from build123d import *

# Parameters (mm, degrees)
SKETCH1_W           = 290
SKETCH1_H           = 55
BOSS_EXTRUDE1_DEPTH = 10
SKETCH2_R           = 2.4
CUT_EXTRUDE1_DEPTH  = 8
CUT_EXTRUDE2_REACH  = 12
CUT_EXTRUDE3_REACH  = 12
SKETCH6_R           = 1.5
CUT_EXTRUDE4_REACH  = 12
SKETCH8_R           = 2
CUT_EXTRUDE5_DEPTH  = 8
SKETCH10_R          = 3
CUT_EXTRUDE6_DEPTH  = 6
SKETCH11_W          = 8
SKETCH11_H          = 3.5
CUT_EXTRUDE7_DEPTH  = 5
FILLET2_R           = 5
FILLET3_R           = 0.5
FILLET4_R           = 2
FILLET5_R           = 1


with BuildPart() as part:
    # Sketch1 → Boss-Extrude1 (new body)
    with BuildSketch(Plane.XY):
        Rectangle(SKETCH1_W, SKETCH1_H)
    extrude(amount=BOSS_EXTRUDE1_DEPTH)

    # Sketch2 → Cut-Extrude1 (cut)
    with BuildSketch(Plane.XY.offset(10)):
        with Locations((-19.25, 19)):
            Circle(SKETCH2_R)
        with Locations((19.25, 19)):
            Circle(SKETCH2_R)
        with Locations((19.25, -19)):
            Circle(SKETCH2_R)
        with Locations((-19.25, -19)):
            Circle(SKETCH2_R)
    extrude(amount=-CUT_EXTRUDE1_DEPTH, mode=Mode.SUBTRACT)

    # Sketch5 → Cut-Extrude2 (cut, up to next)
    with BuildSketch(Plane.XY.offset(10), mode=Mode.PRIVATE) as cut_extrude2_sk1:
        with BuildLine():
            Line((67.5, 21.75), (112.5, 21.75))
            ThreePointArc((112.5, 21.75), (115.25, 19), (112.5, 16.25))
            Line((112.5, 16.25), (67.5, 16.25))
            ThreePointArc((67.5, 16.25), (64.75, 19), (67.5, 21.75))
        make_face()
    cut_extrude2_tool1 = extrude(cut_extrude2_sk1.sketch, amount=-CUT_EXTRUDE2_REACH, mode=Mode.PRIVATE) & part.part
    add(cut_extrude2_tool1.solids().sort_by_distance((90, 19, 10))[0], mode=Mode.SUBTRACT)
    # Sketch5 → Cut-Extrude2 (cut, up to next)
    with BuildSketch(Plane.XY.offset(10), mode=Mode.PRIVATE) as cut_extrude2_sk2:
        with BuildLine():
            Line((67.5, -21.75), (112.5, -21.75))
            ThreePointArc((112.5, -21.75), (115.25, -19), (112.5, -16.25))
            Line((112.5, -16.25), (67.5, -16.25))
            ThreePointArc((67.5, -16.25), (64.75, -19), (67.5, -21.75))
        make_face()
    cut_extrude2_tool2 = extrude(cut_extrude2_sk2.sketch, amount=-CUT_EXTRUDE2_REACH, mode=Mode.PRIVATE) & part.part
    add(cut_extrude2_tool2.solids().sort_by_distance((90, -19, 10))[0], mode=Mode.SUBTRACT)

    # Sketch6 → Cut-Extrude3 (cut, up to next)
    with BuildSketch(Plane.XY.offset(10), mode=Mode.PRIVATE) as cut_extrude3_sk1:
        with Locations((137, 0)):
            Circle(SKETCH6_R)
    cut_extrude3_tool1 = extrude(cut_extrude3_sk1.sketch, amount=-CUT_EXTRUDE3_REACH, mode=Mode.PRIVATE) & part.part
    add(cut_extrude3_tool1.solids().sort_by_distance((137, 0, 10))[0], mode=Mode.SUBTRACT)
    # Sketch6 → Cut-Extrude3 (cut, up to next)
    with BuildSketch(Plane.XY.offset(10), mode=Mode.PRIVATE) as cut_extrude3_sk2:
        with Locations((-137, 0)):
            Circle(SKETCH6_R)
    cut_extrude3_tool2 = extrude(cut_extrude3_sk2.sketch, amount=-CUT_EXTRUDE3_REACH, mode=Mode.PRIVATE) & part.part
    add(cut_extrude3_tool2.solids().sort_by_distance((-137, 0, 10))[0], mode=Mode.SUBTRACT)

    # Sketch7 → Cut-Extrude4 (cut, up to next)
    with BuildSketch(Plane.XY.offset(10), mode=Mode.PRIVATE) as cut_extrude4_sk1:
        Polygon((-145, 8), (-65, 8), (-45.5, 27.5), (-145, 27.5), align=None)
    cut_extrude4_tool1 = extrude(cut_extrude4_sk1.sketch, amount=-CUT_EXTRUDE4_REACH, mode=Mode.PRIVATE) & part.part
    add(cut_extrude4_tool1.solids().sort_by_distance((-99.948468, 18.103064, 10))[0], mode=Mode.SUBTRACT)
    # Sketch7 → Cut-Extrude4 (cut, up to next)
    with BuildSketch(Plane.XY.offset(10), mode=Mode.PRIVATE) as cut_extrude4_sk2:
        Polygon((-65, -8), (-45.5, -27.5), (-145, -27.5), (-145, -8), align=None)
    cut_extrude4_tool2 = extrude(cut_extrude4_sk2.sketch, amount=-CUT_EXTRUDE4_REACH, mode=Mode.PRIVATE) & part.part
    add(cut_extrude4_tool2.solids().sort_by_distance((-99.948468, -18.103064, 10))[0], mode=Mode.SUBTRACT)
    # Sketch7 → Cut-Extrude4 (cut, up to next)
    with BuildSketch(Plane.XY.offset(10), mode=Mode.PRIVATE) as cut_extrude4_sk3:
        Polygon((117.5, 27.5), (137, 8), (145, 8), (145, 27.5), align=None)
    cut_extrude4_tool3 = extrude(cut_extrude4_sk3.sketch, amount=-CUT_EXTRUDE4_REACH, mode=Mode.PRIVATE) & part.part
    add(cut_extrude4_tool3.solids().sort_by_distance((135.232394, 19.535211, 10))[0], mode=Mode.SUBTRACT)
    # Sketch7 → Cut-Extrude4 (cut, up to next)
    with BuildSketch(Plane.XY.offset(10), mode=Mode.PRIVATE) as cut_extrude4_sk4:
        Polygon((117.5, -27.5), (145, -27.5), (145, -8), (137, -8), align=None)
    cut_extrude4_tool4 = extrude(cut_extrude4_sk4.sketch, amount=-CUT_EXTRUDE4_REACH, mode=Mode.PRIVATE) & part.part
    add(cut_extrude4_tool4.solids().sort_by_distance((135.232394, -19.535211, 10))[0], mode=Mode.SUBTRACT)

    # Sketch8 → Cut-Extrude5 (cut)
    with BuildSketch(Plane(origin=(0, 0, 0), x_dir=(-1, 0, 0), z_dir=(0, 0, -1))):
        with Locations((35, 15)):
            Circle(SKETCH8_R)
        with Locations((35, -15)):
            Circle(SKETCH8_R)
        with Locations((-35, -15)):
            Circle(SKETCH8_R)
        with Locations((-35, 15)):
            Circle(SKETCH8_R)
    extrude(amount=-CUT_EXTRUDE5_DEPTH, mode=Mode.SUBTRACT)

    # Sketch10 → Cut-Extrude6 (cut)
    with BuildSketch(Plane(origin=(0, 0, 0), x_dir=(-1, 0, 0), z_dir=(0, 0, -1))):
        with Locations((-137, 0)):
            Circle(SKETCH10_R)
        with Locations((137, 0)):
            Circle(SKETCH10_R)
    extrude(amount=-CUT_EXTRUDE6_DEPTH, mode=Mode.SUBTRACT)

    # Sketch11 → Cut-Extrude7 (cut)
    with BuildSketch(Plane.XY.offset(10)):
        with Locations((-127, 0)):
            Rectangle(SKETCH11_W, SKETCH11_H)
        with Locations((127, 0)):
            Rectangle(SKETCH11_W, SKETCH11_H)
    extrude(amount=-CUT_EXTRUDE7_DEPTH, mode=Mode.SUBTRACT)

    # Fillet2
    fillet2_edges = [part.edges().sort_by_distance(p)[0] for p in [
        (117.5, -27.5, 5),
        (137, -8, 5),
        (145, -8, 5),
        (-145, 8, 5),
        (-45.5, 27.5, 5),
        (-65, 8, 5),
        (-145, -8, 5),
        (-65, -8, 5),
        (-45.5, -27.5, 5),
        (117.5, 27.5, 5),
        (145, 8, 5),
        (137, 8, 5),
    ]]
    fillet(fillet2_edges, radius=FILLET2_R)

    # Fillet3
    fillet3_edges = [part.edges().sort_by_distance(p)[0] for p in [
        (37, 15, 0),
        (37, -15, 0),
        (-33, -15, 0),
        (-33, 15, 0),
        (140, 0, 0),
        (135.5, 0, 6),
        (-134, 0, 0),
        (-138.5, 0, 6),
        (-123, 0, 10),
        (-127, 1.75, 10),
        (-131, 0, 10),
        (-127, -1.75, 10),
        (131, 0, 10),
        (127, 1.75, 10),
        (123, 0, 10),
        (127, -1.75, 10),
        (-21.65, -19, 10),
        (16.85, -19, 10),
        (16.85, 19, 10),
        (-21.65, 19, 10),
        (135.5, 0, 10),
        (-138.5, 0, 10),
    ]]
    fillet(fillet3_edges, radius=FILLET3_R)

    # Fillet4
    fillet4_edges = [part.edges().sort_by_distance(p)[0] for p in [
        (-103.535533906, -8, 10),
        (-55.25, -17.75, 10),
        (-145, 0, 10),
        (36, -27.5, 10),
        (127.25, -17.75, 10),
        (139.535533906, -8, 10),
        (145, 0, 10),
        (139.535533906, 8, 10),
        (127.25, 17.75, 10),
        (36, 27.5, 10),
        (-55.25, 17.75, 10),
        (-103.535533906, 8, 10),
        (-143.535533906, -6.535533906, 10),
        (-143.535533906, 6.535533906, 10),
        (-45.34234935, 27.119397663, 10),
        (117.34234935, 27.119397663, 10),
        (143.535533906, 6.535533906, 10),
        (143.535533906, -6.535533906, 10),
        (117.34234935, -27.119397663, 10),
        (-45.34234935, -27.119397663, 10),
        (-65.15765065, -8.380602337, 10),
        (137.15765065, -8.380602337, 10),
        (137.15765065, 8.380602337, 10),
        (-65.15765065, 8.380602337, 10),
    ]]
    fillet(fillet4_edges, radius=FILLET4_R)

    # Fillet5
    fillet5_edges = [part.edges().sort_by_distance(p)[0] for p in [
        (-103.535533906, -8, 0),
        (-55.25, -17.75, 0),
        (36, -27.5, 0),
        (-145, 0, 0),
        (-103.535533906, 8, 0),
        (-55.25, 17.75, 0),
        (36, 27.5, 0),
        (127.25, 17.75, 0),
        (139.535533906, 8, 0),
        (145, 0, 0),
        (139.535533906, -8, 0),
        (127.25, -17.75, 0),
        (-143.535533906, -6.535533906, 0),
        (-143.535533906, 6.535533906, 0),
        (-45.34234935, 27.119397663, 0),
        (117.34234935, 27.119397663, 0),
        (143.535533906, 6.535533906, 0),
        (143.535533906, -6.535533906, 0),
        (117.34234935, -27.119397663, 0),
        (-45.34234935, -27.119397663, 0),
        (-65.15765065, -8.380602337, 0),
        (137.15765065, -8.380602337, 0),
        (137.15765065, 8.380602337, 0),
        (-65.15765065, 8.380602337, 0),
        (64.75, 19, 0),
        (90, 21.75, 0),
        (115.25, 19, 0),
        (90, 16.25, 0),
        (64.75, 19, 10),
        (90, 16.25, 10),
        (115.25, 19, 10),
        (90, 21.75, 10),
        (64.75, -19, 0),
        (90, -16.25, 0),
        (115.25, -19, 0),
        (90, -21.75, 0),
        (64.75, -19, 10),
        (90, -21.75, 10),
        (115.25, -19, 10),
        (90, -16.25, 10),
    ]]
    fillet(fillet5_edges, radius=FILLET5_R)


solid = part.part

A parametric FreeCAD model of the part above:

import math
import FreeCAD as App
import Part
import Sketcher
Q = App.Units.Quantity


def edges_at(feature, points):
    """Names of the edges that pass closest to the given points."""
    edges = feature.Shape.Edges
    near = lambda p: min(range(len(edges)), key=lambda i: edges[i].distToShape(Part.Vertex(*p))[0])
    return sorted({f"Edge{near(p) + 1}" for p in points})

doc = App.newDocument("Part")
body = doc.addObject("PartDesign::Body", "Body")

# Sketch on XY plane
sketch1 = doc.addObject("Sketcher::SketchObject", "Sketch")
body.addObject(sketch1)
sketch1.AttachmentSupport = (doc.XY_Plane, [""])
sketch1.MapMode = "FlatFace"
sketch1.addGeometry(Part.LineSegment(App.Vector(-145, 27.5, 0), App.Vector(-145, -27.5, 0)), False)
sketch1.addGeometry(Part.LineSegment(App.Vector(-145, -27.5, 0), App.Vector(145, -27.5, 0)), False)
sketch1.addGeometry(Part.LineSegment(App.Vector(145, -27.5, 0), App.Vector(145, 27.5, 0)), False)
sketch1.addGeometry(Part.LineSegment(App.Vector(145, 27.5, 0), App.Vector(-145, 27.5, 0)), False)
sketch1.addConstraint(Sketcher.Constraint("Coincident", 0, 2, 1, 1))
sketch1.addConstraint(Sketcher.Constraint("Coincident", 1, 2, 2, 1))
sketch1.addConstraint(Sketcher.Constraint("Coincident", 2, 2, 3, 1))
sketch1.addConstraint(Sketcher.Constraint("Coincident", 3, 2, 0, 1))
sketch1.addConstraint(Sketcher.Constraint("Vertical", 0))
sketch1.addConstraint(Sketcher.Constraint("Horizontal", 1))
sketch1.addConstraint(Sketcher.Constraint("Vertical", 2))
sketch1.addConstraint(Sketcher.Constraint("Horizontal", 3))
sketch1.addConstraint(Sketcher.Constraint("Symmetric", 0, 2, 2, 2, -1, 1))
sketch1.addConstraint(Sketcher.Constraint("DistanceX", 1, 1, 1, 2, Q("290 mm")))
sketch1.addConstraint(Sketcher.Constraint("DistanceY", 0, 2, 0, 1, Q("55 mm")))
pad1 = doc.addObject("PartDesign::Pad", "Pad")
body.addObject(pad1)
pad1.Profile = sketch1
pad1.Length = 10

# Sketch on XY plane
sketch2 = doc.addObject("Sketcher::SketchObject", "Sketch001")
body.addObject(sketch2)
sketch2.AttachmentSupport = (doc.XY_Plane, [""])
sketch2.MapMode = "FlatFace"
sketch2.AttachmentOffset = App.Placement(App.Vector(0, 0, 10), App.Rotation())
sketch2.addGeometry(Part.Circle(App.Vector(-19.25, 19, 0), App.Vector(0, 0, 1), 2.4), False)
sketch2.addGeometry(Part.Circle(App.Vector(19.25, 19, 0), App.Vector(0, 0, 1), 2.4), False)
sketch2.addGeometry(Part.Circle(App.Vector(19.25, -19, 0), App.Vector(0, 0, 1), 2.4), False)
sketch2.addGeometry(Part.Circle(App.Vector(-19.25, -19, 0), App.Vector(0, 0, 1), 2.4), False)
sketch2.addConstraint(Sketcher.Constraint("Equal", 0, 1))
sketch2.addConstraint(Sketcher.Constraint("Equal", 1, 2))
sketch2.addConstraint(Sketcher.Constraint("Equal", 2, 3))
sketch2.addConstraint(Sketcher.Constraint("Symmetric", 0, 3, 2, 3, -1, 1))
sketch2.addConstraint(Sketcher.Constraint("Symmetric", 1, 3, 3, 3, -1, 1))
sketch2.addConstraint(Sketcher.Constraint("Symmetric", 0, 3, 1, 3, -2))
sketch2.addConstraint(Sketcher.Constraint("Diameter", 0, Q("4.8 mm")))
sketch2.addConstraint(Sketcher.Constraint("DistanceY", -1, 1, 0, 3, Q("19 mm")))
sketch2.addConstraint(Sketcher.Constraint("DistanceX", 0, 3, 1, 3, Q("38.5 mm")))
pocket1 = doc.addObject("PartDesign::Pocket", "Pocket")
body.addObject(pocket1)
pocket1.Profile = sketch2
pocket1.Length = 8

# Sketch on XY plane
sketch3 = doc.addObject("Sketcher::SketchObject", "Sketch002")
body.addObject(sketch3)
sketch3.AttachmentSupport = (doc.XY_Plane, [""])
sketch3.MapMode = "FlatFace"
sketch3.AttachmentOffset = App.Placement(App.Vector(0, 0, 10), App.Rotation())
sketch3.addGeometry(Part.LineSegment(App.Vector(112.5, 21.75, 0), App.Vector(67.5, 21.75, 0)), False)
sketch3.addGeometry(Part.ArcOfCircle(Part.Circle(App.Vector(67.5, 19, 0), App.Vector(0, 0, 1), 2.75), math.radians(90), math.radians(270)), False)
sketch3.addGeometry(Part.LineSegment(App.Vector(67.5, 16.25, 0), App.Vector(112.5, 16.25, 0)), False)
sketch3.addGeometry(Part.ArcOfCircle(Part.Circle(App.Vector(112.5, 19, 0), App.Vector(0, 0, 1), 2.75), math.radians(-90), math.radians(90)), False)
sketch3.addConstraint(Sketcher.Constraint("Tangent", 0, 2, 1, 1))
sketch3.addConstraint(Sketcher.Constraint("Tangent", 1, 2, 2, 1))
sketch3.addConstraint(Sketcher.Constraint("Tangent", 2, 2, 3, 1))
sketch3.addConstraint(Sketcher.Constraint("Tangent", 3, 2, 0, 1))
sketch3.addConstraint(Sketcher.Constraint("Horizontal", 0))
sketch3.addConstraint(Sketcher.Constraint("Horizontal", 2))
sketch3.addConstraint(Sketcher.Constraint("DistanceX", 0, 2, 0, 1, Q("45 mm")))
sketch3.addConstraint(Sketcher.Constraint("Radius", 1, Q("2.75 mm")))
sketch3.addConstraint(Sketcher.Constraint("DistanceY", -1, 1, 1, 3, Q("19 mm")))
sketch3.addConstraint(Sketcher.Constraint("DistanceX", -1, 1, 1, 3, Q("67.5 mm")))
pocket2 = doc.addObject("PartDesign::Pocket", "Pocket001")
body.addObject(pocket2)
pocket2.Profile = sketch3
pocket2.Type = "UpToFirst"

# Sketch on XY plane
sketch4 = doc.addObject("Sketcher::SketchObject", "Sketch003")
body.addObject(sketch4)
sketch4.AttachmentSupport = (doc.XY_Plane, [""])
sketch4.MapMode = "FlatFace"
sketch4.AttachmentOffset = App.Placement(App.Vector(0, 0, 10), App.Rotation())
sketch4.addGeometry(Part.LineSegment(App.Vector(67.5, -21.75, 0), App.Vector(112.5, -21.75, 0)), False)
sketch4.addGeometry(Part.ArcOfCircle(Part.Circle(App.Vector(112.5, -19, 0), App.Vector(0, 0, 1), 2.75), math.radians(-90), math.radians(90)), False)
sketch4.addGeometry(Part.LineSegment(App.Vector(112.5, -16.25, 0), App.Vector(67.5, -16.25, 0)), False)
sketch4.addGeometry(Part.ArcOfCircle(Part.Circle(App.Vector(67.5, -19, 0), App.Vector(0, 0, 1), 2.75), math.radians(90), math.radians(270)), False)
sketch4.addConstraint(Sketcher.Constraint("Tangent", 0, 2, 1, 1))
sketch4.addConstraint(Sketcher.Constraint("Tangent", 1, 2, 2, 1))
sketch4.addConstraint(Sketcher.Constraint("Tangent", 2, 2, 3, 1))
sketch4.addConstraint(Sketcher.Constraint("Tangent", 3, 2, 0, 1))
sketch4.addConstraint(Sketcher.Constraint("Horizontal", 0))
sketch4.addConstraint(Sketcher.Constraint("Horizontal", 2))
sketch4.addConstraint(Sketcher.Constraint("DistanceX", 0, 1, 0, 2, Q("45 mm")))
sketch4.addConstraint(Sketcher.Constraint("Radius", 1, Q("2.75 mm")))
sketch4.addConstraint(Sketcher.Constraint("DistanceY", 1, 3, -1, 1, Q("19 mm")))
sketch4.addConstraint(Sketcher.Constraint("DistanceX", -1, 1, 1, 3, Q("112.5 mm")))
pocket3 = doc.addObject("PartDesign::Pocket", "Pocket002")
body.addObject(pocket3)
pocket3.Profile = sketch4
pocket3.Type = "UpToFirst"

# Sketch on XY plane
sketch5 = doc.addObject("Sketcher::SketchObject", "Sketch004")
body.addObject(sketch5)
sketch5.AttachmentSupport = (doc.XY_Plane, [""])
sketch5.MapMode = "FlatFace"
sketch5.AttachmentOffset = App.Placement(App.Vector(0, 0, 10), App.Rotation())
sketch5.addGeometry(Part.Circle(App.Vector(137, 0, 0), App.Vector(0, 0, 1), 1.5), False)
sketch5.addConstraint(Sketcher.Constraint("PointOnObject", 0, 3, -1))
sketch5.addConstraint(Sketcher.Constraint("Diameter", 0, Q("3 mm")))
sketch5.addConstraint(Sketcher.Constraint("DistanceX", -1, 1, 0, 3, Q("137 mm")))
pocket4 = doc.addObject("PartDesign::Pocket", "Pocket003")
body.addObject(pocket4)
pocket4.Profile = sketch5
pocket4.Type = "UpToFirst"

# Sketch on XY plane
sketch6 = doc.addObject("Sketcher::SketchObject", "Sketch005")
body.addObject(sketch6)
sketch6.AttachmentSupport = (doc.XY_Plane, [""])
sketch6.MapMode = "FlatFace"
sketch6.AttachmentOffset = App.Placement(App.Vector(0, 0, 10), App.Rotation())
sketch6.addGeometry(Part.Circle(App.Vector(-137, 0, 0), App.Vector(0, 0, 1), 1.5), False)
sketch6.addConstraint(Sketcher.Constraint("PointOnObject", 0, 3, -1))
sketch6.addConstraint(Sketcher.Constraint("Diameter", 0, Q("3 mm")))
sketch6.addConstraint(Sketcher.Constraint("DistanceX", 0, 3, -1, 1, Q("137 mm")))
pocket5 = doc.addObject("PartDesign::Pocket", "Pocket004")
body.addObject(pocket5)
pocket5.Profile = sketch6
pocket5.Type = "UpToFirst"

# Sketch on XY plane
sketch7 = doc.addObject("Sketcher::SketchObject", "Sketch006")
body.addObject(sketch7)
sketch7.AttachmentSupport = (doc.XY_Plane, [""])
sketch7.MapMode = "FlatFace"
sketch7.AttachmentOffset = App.Placement(App.Vector(0, 0, 10), App.Rotation())
sketch7.addGeometry(Part.LineSegment(App.Vector(-145, 8, 0), App.Vector(-65, 8, 0)), False)
sketch7.addGeometry(Part.LineSegment(App.Vector(-65, 8, 0), App.Vector(-45.5, 27.5, 0)), False)
sketch7.addGeometry(Part.LineSegment(App.Vector(-45.5, 27.5, 0), App.Vector(-145, 27.5, 0)), False)
sketch7.addGeometry(Part.LineSegment(App.Vector(-145, 27.5, 0), App.Vector(-145, 8, 0)), False)
sketch7.addConstraint(Sketcher.Constraint("Coincident", 0, 2, 1, 1))
sketch7.addConstraint(Sketcher.Constraint("Coincident", 1, 2, 2, 1))
sketch7.addConstraint(Sketcher.Constraint("Coincident", 2, 2, 3, 1))
sketch7.addConstraint(Sketcher.Constraint("Coincident", 3, 2, 0, 1))
sketch7.addConstraint(Sketcher.Constraint("Horizontal", 0))
sketch7.addConstraint(Sketcher.Constraint("Horizontal", 2))
sketch7.addConstraint(Sketcher.Constraint("Vertical", 3))
sketch7.addConstraint(Sketcher.Constraint("DistanceX", 0, 1, 0, 2, Q("80 mm")))
sketch7.addConstraint(Sketcher.Constraint("Angle", 1, Q("45 deg")))
sketch7.addConstraint(Sketcher.Constraint("DistanceX", 2, 2, 2, 1, Q("99.5 mm")))
sketch7.addConstraint(Sketcher.Constraint("DistanceX", 0, 2, -1, 1, Q("65 mm")))
sketch7.addConstraint(Sketcher.Constraint("DistanceY", -1, 1, 0, 2, Q("8 mm")))
pocket6 = doc.addObject("PartDesign::Pocket", "Pocket005")
body.addObject(pocket6)
pocket6.Profile = sketch7
pocket6.Type = "UpToFirst"

# Sketch on XY plane
sketch8 = doc.addObject("Sketcher::SketchObject", "Sketch007")
body.addObject(sketch8)
sketch8.AttachmentSupport = (doc.XY_Plane, [""])
sketch8.MapMode = "FlatFace"
sketch8.AttachmentOffset = App.Placement(App.Vector(0, 0, 10), App.Rotation())
sketch8.addGeometry(Part.LineSegment(App.Vector(-45.5, -27.5, 0), App.Vector(-65, -8, 0)), False)
sketch8.addGeometry(Part.LineSegment(App.Vector(-65, -8, 0), App.Vector(-145, -8, 0)), False)
sketch8.addGeometry(Part.LineSegment(App.Vector(-145, -8, 0), App.Vector(-145, -27.5, 0)), False)
sketch8.addGeometry(Part.LineSegment(App.Vector(-145, -27.5, 0), App.Vector(-45.5, -27.5, 0)), False)
sketch8.addConstraint(Sketcher.Constraint("Coincident", 0, 2, 1, 1))
sketch8.addConstraint(Sketcher.Constraint("Coincident", 1, 2, 2, 1))
sketch8.addConstraint(Sketcher.Constraint("Coincident", 2, 2, 3, 1))
sketch8.addConstraint(Sketcher.Constraint("Coincident", 3, 2, 0, 1))
sketch8.addConstraint(Sketcher.Constraint("Horizontal", 1))
sketch8.addConstraint(Sketcher.Constraint("Vertical", 2))
sketch8.addConstraint(Sketcher.Constraint("Horizontal", 3))
sketch8.addConstraint(Sketcher.Constraint("DistanceX", 1, 2, 1, 1, Q("80 mm")))
sketch8.addConstraint(Sketcher.Constraint("Angle", 0, Q("135 deg")))
sketch8.addConstraint(Sketcher.Constraint("DistanceX", 3, 1, 3, 2, Q("99.5 mm")))
sketch8.addConstraint(Sketcher.Constraint("DistanceX", 0, 2, -1, 1, Q("65 mm")))
sketch8.addConstraint(Sketcher.Constraint("DistanceY", 0, 2, -1, 1, Q("8 mm")))
pocket7 = doc.addObject("PartDesign::Pocket", "Pocket006")
body.addObject(pocket7)
pocket7.Profile = sketch8
pocket7.Type = "UpToFirst"

# Sketch on XY plane
sketch9 = doc.addObject("Sketcher::SketchObject", "Sketch008")
body.addObject(sketch9)
sketch9.AttachmentSupport = (doc.XY_Plane, [""])
sketch9.MapMode = "FlatFace"
sketch9.AttachmentOffset = App.Placement(App.Vector(0, 0, 10), App.Rotation())
sketch9.addGeometry(Part.LineSegment(App.Vector(117.5, 27.5, 0), App.Vector(137, 8, 0)), False)
sketch9.addGeometry(Part.LineSegment(App.Vector(137, 8, 0), App.Vector(145, 8, 0)), False)
sketch9.addGeometry(Part.LineSegment(App.Vector(145, 8, 0), App.Vector(145, 27.5, 0)), False)
sketch9.addGeometry(Part.LineSegment(App.Vector(145, 27.5, 0), App.Vector(117.5, 27.5, 0)), False)
sketch9.addConstraint(Sketcher.Constraint("Coincident", 0, 2, 1, 1))
sketch9.addConstraint(Sketcher.Constraint("Coincident", 1, 2, 2, 1))
sketch9.addConstraint(Sketcher.Constraint("Coincident", 2, 2, 3, 1))
sketch9.addConstraint(Sketcher.Constraint("Coincident", 3, 2, 0, 1))
sketch9.addConstraint(Sketcher.Constraint("Horizontal", 1))
sketch9.addConstraint(Sketcher.Constraint("Vertical", 2))
sketch9.addConstraint(Sketcher.Constraint("Horizontal", 3))
sketch9.addConstraint(Sketcher.Constraint("DistanceX", 1, 1, 1, 2, Q("8 mm")))
sketch9.addConstraint(Sketcher.Constraint("Angle", 0, Q("-45 deg")))
sketch9.addConstraint(Sketcher.Constraint("DistanceX", 3, 2, 3, 1, Q("27.5 mm")))
sketch9.addConstraint(Sketcher.Constraint("DistanceX", -1, 1, 0, 2, Q("137 mm")))
sketch9.addConstraint(Sketcher.Constraint("DistanceY", -1, 1, 0, 2, Q("8 mm")))
pocket8 = doc.addObject("PartDesign::Pocket", "Pocket007")
body.addObject(pocket8)
pocket8.Profile = sketch9
pocket8.Type = "UpToFirst"

# Sketch on XY plane
sketch10 = doc.addObject("Sketcher::SketchObject", "Sketch009")
body.addObject(sketch10)
sketch10.AttachmentSupport = (doc.XY_Plane, [""])
sketch10.MapMode = "FlatFace"
sketch10.AttachmentOffset = App.Placement(App.Vector(0, 0, 10), App.Rotation())
sketch10.addGeometry(Part.LineSegment(App.Vector(117.5, -27.5, 0), App.Vector(145, -27.5, 0)), False)
sketch10.addGeometry(Part.LineSegment(App.Vector(145, -27.5, 0), App.Vector(145, -8, 0)), False)
sketch10.addGeometry(Part.LineSegment(App.Vector(145, -8, 0), App.Vector(137, -8, 0)), False)
sketch10.addGeometry(Part.LineSegment(App.Vector(137, -8, 0), App.Vector(117.5, -27.5, 0)), False)
sketch10.addConstraint(Sketcher.Constraint("Coincident", 0, 2, 1, 1))
sketch10.addConstraint(Sketcher.Constraint("Coincident", 1, 2, 2, 1))
sketch10.addConstraint(Sketcher.Constraint("Coincident", 2, 2, 3, 1))
sketch10.addConstraint(Sketcher.Constraint("Coincident", 3, 2, 0, 1))
sketch10.addConstraint(Sketcher.Constraint("Horizontal", 0))
sketch10.addConstraint(Sketcher.Constraint("Vertical", 1))
sketch10.addConstraint(Sketcher.Constraint("Horizontal", 2))
sketch10.addConstraint(Sketcher.Constraint("DistanceX", 2, 2, 2, 1, Q("8 mm")))
sketch10.addConstraint(Sketcher.Constraint("Angle", 3, Q("-135 deg")))
sketch10.addConstraint(Sketcher.Constraint("DistanceX", 0, 1, 0, 2, Q("27.5 mm")))
sketch10.addConstraint(Sketcher.Constraint("DistanceX", -1, 1, 0, 2, Q("145 mm")))
sketch10.addConstraint(Sketcher.Constraint("DistanceY", 1, 2, -1, 1, Q("8 mm")))
pocket9 = doc.addObject("PartDesign::Pocket", "Pocket008")
body.addObject(pocket9)
pocket9.Profile = sketch10
pocket9.Type = "UpToFirst"

# Sketch on XY plane
sketch11 = doc.addObject("Sketcher::SketchObject", "Sketch010")
body.addObject(sketch11)
sketch11.AttachmentSupport = (doc.XY_Plane, [""])
sketch11.MapMode = "FlatFace"
sketch11.addGeometry(Part.Circle(App.Vector(-35, 15, 0), App.Vector(0, 0, 1), 2), False)
sketch11.addGeometry(Part.Circle(App.Vector(-35, -15, 0), App.Vector(0, 0, 1), 2), False)
sketch11.addGeometry(Part.Circle(App.Vector(35, -15, 0), App.Vector(0, 0, 1), 2), False)
sketch11.addGeometry(Part.Circle(App.Vector(35, 15, 0), App.Vector(0, 0, 1), 2), False)
sketch11.addConstraint(Sketcher.Constraint("Equal", 0, 1))
sketch11.addConstraint(Sketcher.Constraint("Equal", 1, 2))
sketch11.addConstraint(Sketcher.Constraint("Equal", 2, 3))
sketch11.addConstraint(Sketcher.Constraint("Symmetric", 0, 3, 2, 3, -1, 1))
sketch11.addConstraint(Sketcher.Constraint("Symmetric", 1, 3, 3, 3, -1, 1))
sketch11.addConstraint(Sketcher.Constraint("Symmetric", 1, 3, 2, 3, -2))
sketch11.addConstraint(Sketcher.Constraint("Diameter", 0, Q("4 mm")))
sketch11.addConstraint(Sketcher.Constraint("DistanceX", 0, 3, -1, 1, Q("35 mm")))
sketch11.addConstraint(Sketcher.Constraint("DistanceY", -1, 1, 0, 3, Q("15 mm")))
pocket10 = doc.addObject("PartDesign::Pocket", "Pocket009")
body.addObject(pocket10)
pocket10.Profile = sketch11
pocket10.Length = 8
pocket10.Reversed = True

# Sketch on XY plane
sketch12 = doc.addObject("Sketcher::SketchObject", "Sketch011")
body.addObject(sketch12)
sketch12.AttachmentSupport = (doc.XY_Plane, [""])
sketch12.MapMode = "FlatFace"
sketch12.addGeometry(Part.Circle(App.Vector(137, 0, 0), App.Vector(0, 0, 1), 3), False)
sketch12.addGeometry(Part.Circle(App.Vector(-137, 0, 0), App.Vector(0, 0, 1), 3), False)
sketch12.addConstraint(Sketcher.Constraint("Equal", 0, 1))
sketch12.addConstraint(Sketcher.Constraint("Symmetric", 0, 3, 1, 3, -1, 1))
sketch12.addConstraint(Sketcher.Constraint("PointOnObject", 0, 3, -1))
sketch12.addConstraint(Sketcher.Constraint("Diameter", 0, Q("6 mm")))
sketch12.addConstraint(Sketcher.Constraint("DistanceX", -1, 1, 0, 3, Q("137 mm")))
pocket11 = doc.addObject("PartDesign::Pocket", "Pocket010")
body.addObject(pocket11)
pocket11.Profile = sketch12
pocket11.Length = 6
pocket11.Reversed = True

# Sketch on XY plane
sketch13 = doc.addObject("Sketcher::SketchObject", "Sketch012")
body.addObject(sketch13)
sketch13.AttachmentSupport = (doc.XY_Plane, [""])
sketch13.MapMode = "FlatFace"
sketch13.AttachmentOffset = App.Placement(App.Vector(0, 0, 10), App.Rotation())
sketch13.addGeometry(Part.LineSegment(App.Vector(-131, 1.75, 0), App.Vector(-131, -1.75, 0)), False)
sketch13.addGeometry(Part.LineSegment(App.Vector(-131, -1.75, 0), App.Vector(-123, -1.75, 0)), False)
sketch13.addGeometry(Part.LineSegment(App.Vector(-123, -1.75, 0), App.Vector(-123, 1.75, 0)), False)
sketch13.addGeometry(Part.LineSegment(App.Vector(-123, 1.75, 0), App.Vector(-131, 1.75, 0)), False)
sketch13.addGeometry(Part.LineSegment(App.Vector(123, 1.75, 0), App.Vector(123, -1.75, 0)), False)
sketch13.addGeometry(Part.LineSegment(App.Vector(123, -1.75, 0), App.Vector(131, -1.75, 0)), False)
sketch13.addGeometry(Part.LineSegment(App.Vector(131, -1.75, 0), App.Vector(131, 1.75, 0)), False)
sketch13.addGeometry(Part.LineSegment(App.Vector(131, 1.75, 0), App.Vector(123, 1.75, 0)), False)
sketch13.addConstraint(Sketcher.Constraint("Coincident", 0, 2, 1, 1))
sketch13.addConstraint(Sketcher.Constraint("Coincident", 1, 2, 2, 1))
sketch13.addConstraint(Sketcher.Constraint("Coincident", 2, 2, 3, 1))
sketch13.addConstraint(Sketcher.Constraint("Coincident", 3, 2, 0, 1))
sketch13.addConstraint(Sketcher.Constraint("Coincident", 4, 2, 5, 1))
sketch13.addConstraint(Sketcher.Constraint("Coincident", 5, 2, 6, 1))
sketch13.addConstraint(Sketcher.Constraint("Coincident", 6, 2, 7, 1))
sketch13.addConstraint(Sketcher.Constraint("Coincident", 7, 2, 4, 1))
sketch13.addConstraint(Sketcher.Constraint("Vertical", 0))
sketch13.addConstraint(Sketcher.Constraint("Horizontal", 1))
sketch13.addConstraint(Sketcher.Constraint("Vertical", 2))
sketch13.addConstraint(Sketcher.Constraint("Horizontal", 3))
sketch13.addConstraint(Sketcher.Constraint("Vertical", 4))
sketch13.addConstraint(Sketcher.Constraint("Horizontal", 5))
sketch13.addConstraint(Sketcher.Constraint("Vertical", 6))
sketch13.addConstraint(Sketcher.Constraint("Horizontal", 7))
sketch13.addConstraint(Sketcher.Constraint("Symmetric", 2, 2, 4, 2, -1, 1))
sketch13.addConstraint(Sketcher.Constraint("Symmetric", 0, 2, 6, 2, -1, 1))
sketch13.addConstraint(Sketcher.Constraint("Horizontal", 1, 2, 4, 2))
sketch13.addConstraint(Sketcher.Constraint("DistanceX", 1, 1, 1, 2, Q("8 mm")))
sketch13.addConstraint(Sketcher.Constraint("DistanceY", 0, 2, 0, 1, Q("3.5 mm")))
sketch13.addConstraint(Sketcher.Constraint("DistanceX", 0, 2, -1, 1, Q("131 mm")))
pocket12 = doc.addObject("PartDesign::Pocket", "Pocket011")
body.addObject(pocket12)
pocket12.Profile = sketch13
pocket12.Length = 5
doc.recompute()

fillet = doc.addObject("PartDesign::Fillet", "Fillet")
body.addObject(fillet)
fillet.Base = (pocket12, edges_at(pocket12, [
    (117.5, -27.5, 5),
    (137, -8, 5),
    (145, -8, 5),
    (-145, 8, 5),
    (-45.5, 27.5, 5),
    (-65, 8, 5),
    (-145, -8, 5),
    (-65, -8, 5),
    (-45.5, -27.5, 5),
    (117.5, 27.5, 5),
    (145, 8, 5),
    (137, 8, 5),
]))
fillet.Radius = 5
doc.recompute()

fillet2 = doc.addObject("PartDesign::Fillet", "Fillet001")
body.addObject(fillet2)
fillet2.Base = (fillet, edges_at(fillet, [
    (37, 15, 0),
    (37, -15, 0),
    (-33, -15, 0),
    (-33, 15, 0),
    (140, 0, 0),
    (135.5, 0, 6),
    (-134, 0, 0),
    (-138.5, 0, 6),
    (-123, 0, 10),
    (-127, 1.75, 10),
    (-131, 0, 10),
    (-127, -1.75, 10),
    (131, 0, 10),
    (127, 1.75, 10),
    (123, 0, 10),
    (127, -1.75, 10),
    (-21.65, -19, 10),
    (16.85, -19, 10),
    (16.85, 19, 10),
    (-21.65, 19, 10),
    (135.5, 0, 10),
    (-138.5, 0, 10),
]))
fillet2.Radius = 0.5
doc.recompute()

fillet3 = doc.addObject("PartDesign::Fillet", "Fillet002")
body.addObject(fillet3)
fillet3.Base = (fillet2, edges_at(fillet2, [
    (-103.536, -8, 10),
    (-55.25, -17.75, 10),
    (-145, 0, 10),
    (36, -27.5, 10),
    (127.25, -17.75, 10),
    (139.536, -8, 10),
    (145, 0, 10),
    (139.536, 8, 10),
    (127.25, 17.75, 10),
    (36, 27.5, 10),
    (-55.25, 17.75, 10),
    (-103.536, 8, 10),
    (-143.536, -6.536, 10),
    (-143.536, 6.536, 10),
    (-45.342, 27.119, 10),
    (117.342, 27.119, 10),
    (143.536, 6.536, 10),
    (143.536, -6.536, 10),
    (117.342, -27.119, 10),
    (-45.342, -27.119, 10),
    (-65.158, -8.381, 10),
    (137.158, -8.381, 10),
    (137.158, 8.381, 10),
    (-65.158, 8.381, 10),
]))
fillet3.Radius = 2
doc.recompute()

fillet4 = doc.addObject("PartDesign::Fillet", "Fillet003")
body.addObject(fillet4)
fillet4.Base = (fillet3, edges_at(fillet3, [
    (-103.536, -8, 0),
    (-55.25, -17.75, 0),
    (36, -27.5, 0),
    (-145, 0, 0),
    (-103.536, 8, 0),
    (-55.25, 17.75, 0),
    (36, 27.5, 0),
    (127.25, 17.75, 0),
    (139.536, 8, 0),
    (145, 0, 0),
    (139.536, -8, 0),
    (127.25, -17.75, 0),
    (-143.536, -6.536, 0),
    (-143.536, 6.536, 0),
    (-45.342, 27.119, 0),
    (117.342, 27.119, 0),
    (143.536, 6.536, 0),
    (143.536, -6.536, 0),
    (117.342, -27.119, 0),
    (-45.342, -27.119, 0),
    (-65.158, -8.381, 0),
    (137.158, -8.381, 0),
    (137.158, 8.381, 0),
    (-65.158, 8.381, 0),
    (64.75, 19, 0),
    (90, 21.75, 0),
    (115.25, 19, 0),
    (90, 16.25, 0),
    (64.75, 19, 10),
    (90, 16.25, 10),
    (115.25, 19, 10),
    (90, 21.75, 10),
    (64.75, -19, 0),
    (90, -16.25, 0),
    (115.25, -19, 0),
    (90, -21.75, 0),
    (64.75, -19, 10),
    (90, -21.75, 10),
    (115.25, -19, 10),
    (90, -16.25, 10),
]))
fillet4.Radius = 1

doc.recompute()
